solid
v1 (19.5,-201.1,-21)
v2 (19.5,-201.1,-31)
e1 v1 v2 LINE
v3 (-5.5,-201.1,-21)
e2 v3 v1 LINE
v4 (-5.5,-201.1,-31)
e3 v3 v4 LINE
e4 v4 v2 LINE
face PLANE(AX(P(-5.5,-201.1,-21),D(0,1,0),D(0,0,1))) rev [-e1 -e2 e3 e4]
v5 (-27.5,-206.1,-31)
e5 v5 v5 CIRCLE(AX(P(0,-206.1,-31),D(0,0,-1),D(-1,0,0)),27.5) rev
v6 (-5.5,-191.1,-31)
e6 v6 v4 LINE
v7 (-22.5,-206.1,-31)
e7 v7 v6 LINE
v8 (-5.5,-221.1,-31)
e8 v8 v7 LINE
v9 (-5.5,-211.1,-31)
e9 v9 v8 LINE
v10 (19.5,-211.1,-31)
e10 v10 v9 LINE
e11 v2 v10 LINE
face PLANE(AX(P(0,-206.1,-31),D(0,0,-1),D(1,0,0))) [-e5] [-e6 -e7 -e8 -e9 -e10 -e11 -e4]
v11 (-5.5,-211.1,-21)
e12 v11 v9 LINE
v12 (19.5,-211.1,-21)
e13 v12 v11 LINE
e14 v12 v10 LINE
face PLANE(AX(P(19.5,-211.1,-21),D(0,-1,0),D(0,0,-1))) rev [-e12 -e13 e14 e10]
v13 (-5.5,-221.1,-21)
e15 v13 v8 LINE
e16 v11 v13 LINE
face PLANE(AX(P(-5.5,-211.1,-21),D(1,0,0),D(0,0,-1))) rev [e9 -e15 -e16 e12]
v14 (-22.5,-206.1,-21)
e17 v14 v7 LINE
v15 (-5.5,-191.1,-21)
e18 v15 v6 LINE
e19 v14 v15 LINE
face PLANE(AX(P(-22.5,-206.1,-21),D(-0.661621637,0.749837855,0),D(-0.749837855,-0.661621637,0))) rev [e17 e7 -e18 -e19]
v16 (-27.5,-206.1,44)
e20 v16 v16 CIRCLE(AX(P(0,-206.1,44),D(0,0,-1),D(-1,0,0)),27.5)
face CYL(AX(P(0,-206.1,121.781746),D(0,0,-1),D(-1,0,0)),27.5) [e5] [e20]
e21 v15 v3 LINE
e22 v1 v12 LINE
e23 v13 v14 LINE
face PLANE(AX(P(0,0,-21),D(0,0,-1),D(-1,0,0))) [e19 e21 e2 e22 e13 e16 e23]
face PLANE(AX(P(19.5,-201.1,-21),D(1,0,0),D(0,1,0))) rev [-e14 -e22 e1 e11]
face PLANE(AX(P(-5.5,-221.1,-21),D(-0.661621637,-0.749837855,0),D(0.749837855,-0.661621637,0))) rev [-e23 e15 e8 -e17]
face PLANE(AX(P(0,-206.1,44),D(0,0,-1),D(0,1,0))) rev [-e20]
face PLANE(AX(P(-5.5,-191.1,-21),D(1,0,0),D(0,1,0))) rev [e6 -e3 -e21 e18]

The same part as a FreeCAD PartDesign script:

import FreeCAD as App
import Part
import Sketcher
Q = App.Units.Quantity


def add_polygon(sketch, points):
    """Adds a closed chain of lines whose ends are joined by coincident constraints."""
    first, n = sketch.GeometryCount, len(points)
    for a, b in zip(points, points[1:] + points[:1]):
        sketch.addGeometry(Part.LineSegment(App.Vector(*a, 0), App.Vector(*b, 0)), False)
    for i in range(n):
        sketch.addConstraint(Sketcher.Constraint("Coincident", first + i, 2, first + (i + 1) % n, 1))

doc = App.newDocument("Part")
body = doc.addObject("PartDesign::Body", "Body")

# Sketch on XY plane
sketch1 = body.newObject("Sketcher::SketchObject", "Sketch")
sketch1.AttachmentSupport = (doc.getObject("XY_Plane"), [""])
sketch1.MapMode = "FlatFace"
sketch1.addGeometry(Part.Circle(App.Vector(0, -206, 0), App.Vector(0, 0, 1), 28), False)
sketch1.addConstraint([
    Sketcher.Constraint("PointOnObject", 0, 3, -2),
    Sketcher.Constraint("Diameter", 0, Q("55 mm")),
    Sketcher.Constraint("DistanceY", 0, 3, -1, 1, Q("206.1 mm")),
])
pad1 = body.newObject("PartDesign::Pad", "Pad")
pad1.Profile = sketch1
pad1.Type = "TwoLengths"
pad1.Length = 44
pad1.Length2 = 31

# Sketch on XY plane
sketch2 = body.newObject("Sketcher::SketchObject", "Sketch001")
sketch2.AttachmentSupport = (doc.getObject("XY_Plane"), [""])
sketch2.MapMode = "FlatFace"
sketch2.AttachmentOffset = App.Placement(App.Vector(0, 0, -31), App.Rotation())
add_polygon(sketch2, [(-22, -206), (-6, -191), (-6, -201), (20, -201), (20, -211), (-6, -211), (-6, -221)])  # lines 0-6
sketch2.addConstraint([
    Sketcher.Constraint("Vertical", 1),
    Sketcher.Constraint("Horizontal", 2),
    Sketcher.Constraint("Vertical", 3),
    Sketcher.Constraint("Horizontal", 4),
    Sketcher.Constraint("Vertical", 5),
    Sketcher.Constraint("Vertical", 1, 2, 4, 2),
    Sketcher.Constraint("Equal", 1, 3),
    Sketcher.Constraint("Equal", 3, 5),
    Sketcher.Constraint("Equal", 0, 6),
    Sketcher.Constraint("DistanceX", 2, 1, 2, 2, Q("25 mm")),
    Sketcher.Constraint("DistanceY", 1, 2, 1, 1, Q("10 mm")),
    Sketcher.Constraint("DistanceX", 6, 2, 1, 2, Q("17 mm")),
    Sketcher.Constraint("DistanceX", 0, 2, -1, 1, Q("5.5 mm")),
    Sketcher.Constraint("DistanceY", 0, 2, -1, 1, Q("191.1 mm")),
])
pocket1 = body.newObject("PartDesign::Pocket", "Pocket")
pocket1.Profile = sketch2
pocket1.Length = 10
pocket1.Reversed = True

doc.recompute()
